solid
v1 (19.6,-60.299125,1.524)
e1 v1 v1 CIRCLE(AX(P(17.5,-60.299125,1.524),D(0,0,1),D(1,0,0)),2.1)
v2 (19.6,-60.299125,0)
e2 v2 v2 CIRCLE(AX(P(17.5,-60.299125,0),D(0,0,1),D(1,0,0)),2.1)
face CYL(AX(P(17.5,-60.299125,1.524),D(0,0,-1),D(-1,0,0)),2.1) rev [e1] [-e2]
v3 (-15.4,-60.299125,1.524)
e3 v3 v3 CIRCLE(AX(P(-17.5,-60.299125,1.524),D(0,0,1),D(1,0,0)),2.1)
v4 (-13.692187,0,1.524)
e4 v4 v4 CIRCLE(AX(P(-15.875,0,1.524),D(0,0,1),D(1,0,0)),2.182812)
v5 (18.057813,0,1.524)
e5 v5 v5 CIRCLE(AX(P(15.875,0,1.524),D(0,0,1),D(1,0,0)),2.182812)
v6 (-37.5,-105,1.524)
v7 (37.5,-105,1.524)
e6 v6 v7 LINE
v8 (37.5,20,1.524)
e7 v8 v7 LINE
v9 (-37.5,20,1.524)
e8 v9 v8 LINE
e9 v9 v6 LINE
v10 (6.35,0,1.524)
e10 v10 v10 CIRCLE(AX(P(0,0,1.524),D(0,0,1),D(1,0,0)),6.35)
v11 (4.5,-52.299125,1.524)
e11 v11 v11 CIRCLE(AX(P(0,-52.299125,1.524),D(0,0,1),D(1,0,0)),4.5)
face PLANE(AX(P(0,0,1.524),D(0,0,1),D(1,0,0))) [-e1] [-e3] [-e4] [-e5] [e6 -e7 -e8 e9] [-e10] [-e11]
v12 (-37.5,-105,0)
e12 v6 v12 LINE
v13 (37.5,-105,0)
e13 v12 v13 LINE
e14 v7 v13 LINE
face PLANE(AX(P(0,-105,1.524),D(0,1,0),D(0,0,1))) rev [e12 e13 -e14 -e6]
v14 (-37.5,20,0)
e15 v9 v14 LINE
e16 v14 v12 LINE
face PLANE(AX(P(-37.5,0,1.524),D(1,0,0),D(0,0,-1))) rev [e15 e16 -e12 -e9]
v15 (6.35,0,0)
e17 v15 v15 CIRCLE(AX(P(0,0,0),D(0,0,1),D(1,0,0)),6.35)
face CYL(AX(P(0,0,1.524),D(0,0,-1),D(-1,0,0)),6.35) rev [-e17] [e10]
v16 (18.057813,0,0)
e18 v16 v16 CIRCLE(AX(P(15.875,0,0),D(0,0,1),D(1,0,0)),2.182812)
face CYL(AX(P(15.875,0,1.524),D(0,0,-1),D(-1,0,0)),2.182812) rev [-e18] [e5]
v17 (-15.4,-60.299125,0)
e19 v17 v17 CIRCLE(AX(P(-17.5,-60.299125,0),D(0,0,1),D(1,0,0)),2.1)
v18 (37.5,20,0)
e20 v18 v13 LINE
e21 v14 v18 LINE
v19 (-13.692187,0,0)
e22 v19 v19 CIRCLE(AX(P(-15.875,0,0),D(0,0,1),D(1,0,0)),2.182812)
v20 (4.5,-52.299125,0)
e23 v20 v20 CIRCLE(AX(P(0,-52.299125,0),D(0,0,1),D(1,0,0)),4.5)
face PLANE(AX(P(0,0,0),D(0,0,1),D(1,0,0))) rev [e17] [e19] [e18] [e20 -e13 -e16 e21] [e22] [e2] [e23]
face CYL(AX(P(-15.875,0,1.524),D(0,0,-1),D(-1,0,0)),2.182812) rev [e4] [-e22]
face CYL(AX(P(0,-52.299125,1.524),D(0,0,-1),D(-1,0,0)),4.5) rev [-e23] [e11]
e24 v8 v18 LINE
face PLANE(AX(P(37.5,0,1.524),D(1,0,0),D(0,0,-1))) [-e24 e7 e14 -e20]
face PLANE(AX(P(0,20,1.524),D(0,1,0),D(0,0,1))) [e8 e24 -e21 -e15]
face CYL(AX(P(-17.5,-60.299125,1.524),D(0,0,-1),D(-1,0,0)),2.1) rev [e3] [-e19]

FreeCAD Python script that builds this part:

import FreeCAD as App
import Part
import Sketcher
from FreeCAD import Vector


def add_polygon(sketch, points):
    """Adds a closed chain of lines whose ends are joined by coincident constraints."""
    first, n = sketch.GeometryCount, len(points)
    for a, b in zip(points, points[1:] + points[:1]):
        sketch.addGeometry(Part.LineSegment(App.Vector(*a, 0), App.Vector(*b, 0)), False)
    for i in range(n):
        sketch.addConstraint(Sketcher.Constraint("Coincident", first + i, 2, first + (i + 1) % n, 1))

doc = App.newDocument("Part")
body = doc.addObject("PartDesign::Body", "Body")

# Sketch on XY plane
sketch1 = body.newObject("Sketcher::SketchObject", "Sketch")
sketch1.AttachmentSupport = (doc.getObject("XY_Plane"), [""])
sketch1.MapMode = "FlatFace"
add_polygon(sketch1, [(-37.5, 20), (-37.5, -105), (37.5, -105), (37.5, 20)])  # lines 0-3
sketch1.addGeometry(Part.Circle(Vector(-17.5, -60.3, 0), Vector(0, 0, 1), 2.1), False)  # 4
sketch1.addGeometry(Part.Circle(Vector(0, -52.3, 0), Vector(0, 0, 1), 4.5), False)  # 5
sketch1.addGeometry(Part.Circle(Vector(17.5, -60.3, 0), Vector(0, 0, 1), 2.1), False)  # 6
sketch1.addGeometry(Part.Circle(Vector(-15.9, 0, 0), Vector(0, 0, 1), 2.2), False)  # 7
sketch1.addGeometry(Part.Circle(Vector(0, 0, 0), Vector(0, 0, 1), 6.3), False)  # 8
sketch1.addGeometry(Part.Circle(Vector(15.9, 0, 0), Vector(0, 0, 1), 2.2), False)  # 9
sketch1.addConstraint([
    Sketcher.Constraint("Vertical", 0),
    Sketcher.Constraint("Horizontal", 1),
    Sketcher.Constraint("Vertical", 2),
    Sketcher.Constraint("Horizontal", 3),
    Sketcher.Constraint("Coincident", 8, 3, -1, 1),
    Sketcher.Constraint("Equal", 4, 6),
    Sketcher.Constraint("Equal", 7, 9),
    Sketcher.Constraint("Symmetric", 7, 3, 9, 3, -1, 1),
    Sketcher.Constraint("Symmetric", 4, 3, 6, 3, -2),
    Sketcher.Constraint("PointOnObject", 5, 3, -2),
    Sketcher.Constraint("PointOnObject", 7, 3, -1),
    Sketcher.Constraint("Diameter", 5, 9.0),
    Sketcher.Constraint("Diameter", 4, 4.2),
    Sketcher.Constraint("Diameter", 8, 12.7),
    Sketcher.Constraint("DistanceX", 1, 1, 1, 2, 75.0),
    Sketcher.Constraint("DistanceY", 0, 2, 0, 1, 125.0),
    Sketcher.Constraint("DistanceY", 0, 2, -1, 1, 105.0),
    Sketcher.Constraint("DistanceY", 4, 3, 5, 3, 8.0),
    Sketcher.Constraint("DistanceX", 4, 3, 6, 3, 35.0),
    Sketcher.Constraint("DistanceX", 0, 2, 4, 3, 20.0),
    Sketcher.Constraint("DistanceX", 7, 3, 9, 3, 31.75),
    Sketcher.Constraint("Diameter", 7, 4.365625),
    Sketcher.Constraint("DistanceY", 4, 3, -1, 1, 60.299125),
])
pad1 = body.newObject("PartDesign::Pad", "Pad")
pad1.Profile = sketch1
pad1.Length = 1.524

doc.recompute()
